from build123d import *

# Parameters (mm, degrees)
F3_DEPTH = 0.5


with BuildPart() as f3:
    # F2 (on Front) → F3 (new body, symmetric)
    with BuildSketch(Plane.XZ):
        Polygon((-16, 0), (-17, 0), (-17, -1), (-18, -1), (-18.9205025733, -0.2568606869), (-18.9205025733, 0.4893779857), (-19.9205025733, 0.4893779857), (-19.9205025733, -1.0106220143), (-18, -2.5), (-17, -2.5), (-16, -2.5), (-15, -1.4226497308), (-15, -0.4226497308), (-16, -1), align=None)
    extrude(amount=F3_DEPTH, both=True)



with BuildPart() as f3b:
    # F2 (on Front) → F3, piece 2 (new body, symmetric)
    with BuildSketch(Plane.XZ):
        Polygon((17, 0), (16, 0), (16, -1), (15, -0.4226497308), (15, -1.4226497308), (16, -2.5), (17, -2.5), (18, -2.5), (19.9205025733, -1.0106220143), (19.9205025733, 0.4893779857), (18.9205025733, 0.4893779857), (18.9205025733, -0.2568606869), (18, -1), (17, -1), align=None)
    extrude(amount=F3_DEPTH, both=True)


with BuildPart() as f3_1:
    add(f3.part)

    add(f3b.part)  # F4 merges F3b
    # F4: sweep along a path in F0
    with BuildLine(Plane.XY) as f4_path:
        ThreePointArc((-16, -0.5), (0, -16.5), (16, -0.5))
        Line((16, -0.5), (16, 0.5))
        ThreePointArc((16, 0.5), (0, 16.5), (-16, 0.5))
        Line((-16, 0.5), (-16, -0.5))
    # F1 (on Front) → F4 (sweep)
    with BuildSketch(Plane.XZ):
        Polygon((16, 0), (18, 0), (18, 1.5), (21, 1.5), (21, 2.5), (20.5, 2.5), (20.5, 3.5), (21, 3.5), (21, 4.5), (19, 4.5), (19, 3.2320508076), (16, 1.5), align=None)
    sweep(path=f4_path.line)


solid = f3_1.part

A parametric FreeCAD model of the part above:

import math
import FreeCAD as App
import Part
import Sketcher
Q = App.Units.Quantity


def add_polygon(sketch, points):
    """Adds a closed chain of lines whose ends are joined by coincident constraints."""
    first, n = sketch.GeometryCount, len(points)
    for a, b in zip(points, points[1:] + points[:1]):
        sketch.addGeometry(Part.LineSegment(App.Vector(*a, 0), App.Vector(*b, 0)), False)
    for i in range(n):
        sketch.addConstraint(Sketcher.Constraint("Coincident", first + i, 2, first + (i + 1) % n, 1))

doc = App.newDocument("Part")
params = doc.addObject("Spreadsheet::Sheet", "Params")
for row, (alias, value) in enumerate([
    ("sketch1_width", "1 mm"),
    ("sketch1_height", "1.5 mm"),
    ("pad1_length", "1 mm"),
    ("sketch2_width", "1 mm"),
    ("sketch2_height", "1.5 mm"),
    ("pad2_length", "1 mm"),
    ("sketch3_width", "2 mm"),
    ("sketch3_width2", "3 mm"),
    ("sketch3_height", "1 mm"),
    ("sketch3_width3", "0.5 mm"),
    ("sketch3_height2", "1.5 mm"),
    ("sketch4_radius", "16 mm"),
    ("sketch4_height", "1 mm"),
], start=1):
    params.set(f"A{row}", alias)
    params.set(f"B{row}", "=" + value)
    params.setAlias(f"B{row}", alias)

body = doc.addObject("PartDesign::Body", "Body")

# Sketch on XZ plane
sketch1 = body.newObject("Sketcher::SketchObject", "Sketch")
sketch1.AttachmentSupport = (doc.getObject("XZ_Plane"), [""])
sketch1.MapMode = "FlatFace"
add_polygon(sketch1, [(-16, 0), (-17, 0), (-17, -1), (-18, -1), (-18.920503, -0.256861), (-18.920503, 0.489378), (-19.920503, 0.489378), (-19.920503, -1.010622), (-18, -2.5), (-16, -2.5), (-15, -1.42265), (-15, -0.42265), (-16, -1)])  # lines 0-12
sketch1.addConstraint([
    Sketcher.Constraint("Horizontal", 0),
    Sketcher.Constraint("Vertical", 1),
    Sketcher.Constraint("Horizontal", 2),
    Sketcher.Constraint("Vertical", 4),
    Sketcher.Constraint("Horizontal", 5),
    Sketcher.Constraint("Vertical", 6),
    Sketcher.Constraint("Horizontal", 8),
    Sketcher.Constraint("Vertical", 10),
    Sketcher.Constraint("Vertical", 12),
    Sketcher.Constraint("PointOnObject", 0, 2, -1),
    Sketcher.Constraint("Horizontal", 2, 2, 11, 2),
    Sketcher.Constraint("Vertical", 2, 2, 7, 2),
    Sketcher.Constraint("Vertical", 8, 2, 11, 2),
    Sketcher.Constraint("Equal", 0, 2),
    Sketcher.Constraint("Equal", 2, 5),
    Sketcher.Constraint("Equal", 5, 1),
    Sketcher.Constraint("Equal", 1, 10),
    Sketcher.Constraint("DistanceX", 0, 2, 0, 1, 1.0),
    Sketcher.Constraint("Angle", 11, Q("-150 deg")),
    Sketcher.Constraint("DistanceY", 6, 2, 6, 1, 1.5),
    Sketcher.Constraint("DistanceX", 0, 2, -1, 1, 17.0),
    Sketcher.Constraint("DistanceX", 9, 2, -1, 1, 15.0),
    Sketcher.Constraint("DistanceY", 7, 2, -1, 1, 2.5),
    Sketcher.Constraint("DistanceY", 4, 1, 4, 2, 0.746239),
    Sketcher.Constraint("Distance", 3, 1.183039),
    Sketcher.Constraint("DistanceY", 3, 2, -1, 1, 0.256861),
])
sketch1.setExpression("Constraints[30]", "Params.sketch1_width")
sketch1.setExpression("Constraints[32]", "Params.sketch1_height")
pad1 = body.newObject("PartDesign::Pad", "Pad")
pad1.Profile = sketch1
pad1.setExpression("Length", "Params.pad1_length")
pad1.Midplane = True
body2 = doc.addObject("PartDesign::Body", "Body001")

# Sketch on XZ plane
sketch2 = body2.newObject("Sketcher::SketchObject", "Sketch001")
sketch2.AttachmentSupport = (doc.getObject("XZ_Plane001"), [""])
sketch2.MapMode = "FlatFace"
add_polygon(sketch2, [(17, 0), (16, 0), (16, -1), (15, -0.42265), (15, -1.42265), (16, -2.5), (18, -2.5), (19.920503, -1.010622), (19.920503, 0.489378), (18.920503, 0.489378), (18.920503, -0.256861), (18, -1), (17, -1)])  # lines 0-12
sketch2.addConstraint([
    Sketcher.Constraint("Horizontal", 0),
    Sketcher.Constraint("Vertical", 1),
    Sketcher.Constraint("Vertical", 3),
    Sketcher.Constraint("Horizontal", 5),
    Sketcher.Constraint("Vertical", 7),
    Sketcher.Constraint("Horizontal", 8),
    Sketcher.Constraint("Vertical", 9),
    Sketcher.Constraint("Horizontal", 11),
    Sketcher.Constraint("Vertical", 12),
    Sketcher.Constraint("PointOnObject", 0, 2, -1),
    Sketcher.Constraint("Horizontal", 1, 2, 10, 2),
    Sketcher.Constraint("Vertical", 1, 2, 4, 2),
    Sketcher.Constraint("Vertical", 5, 2, 10, 2),
    Sketcher.Constraint("Equal", 0, 8),
    Sketcher.Constraint("Equal", 8, 11),
    Sketcher.Constraint("Equal", 11, 1),
    Sketcher.Constraint("Equal", 1, 3),
    Sketcher.Constraint("DistanceX", 0, 2, 0, 1, 1.0),
    Sketcher.Constraint("Angle", 2, Q("150 deg")),
    Sketcher.Constraint("DistanceY", 7, 1, 7, 2, 1.5),
    Sketcher.Constraint("DistanceX", -1, 1, 0, 2, 16.0),
    Sketcher.Constraint("DistanceX", -1, 1, 2, 2, 15.0),
    Sketcher.Constraint("DistanceY", 4, 2, -1, 1, 2.5),
    Sketcher.Constraint("DistanceY", 9, 2, 9, 1, 0.746239),
    Sketcher.Constraint("Distance", 10, 1.183039),
    Sketcher.Constraint("DistanceY", 9, 2, -1, 1, 0.256861),
])
sketch2.setExpression("Constraints[30]", "Params.sketch2_width")
sketch2.setExpression("Constraints[32]", "Params.sketch2_height")
pad2 = body2.newObject("PartDesign::Pad", "Pad001")
pad2.Profile = sketch2
pad2.setExpression("Length", "Params.pad2_length")
pad2.Midplane = True
body.AllowCompound = True
doc.recompute()

boolean = body.newObject("PartDesign::Boolean", "Boolean")
boolean.Type = "Fuse"
boolean.addObjects([body2])

# Sketch on XZ plane
sketch3 = body.newObject("Sketcher::SketchObject", "Sketch002")
sketch3.AttachmentSupport = (doc.getObject("XZ_Plane"), [""])
sketch3.MapMode = "FlatFace"
add_polygon(sketch3, [(16, 0), (18, 0), (18, 1.5), (21, 1.5), (21, 2.5), (20.5, 2.5), (20.5, 3.5), (21, 3.5), (21, 4.5), (19, 4.5), (19, 3.232051), (16, 1.5)])  # lines 0-11
sketch3.addConstraint([
    Sketcher.Constraint("Horizontal", 0),
    Sketcher.Constraint("Vertical", 1),
    Sketcher.Constraint("Horizontal", 2),
    Sketcher.Constraint("Vertical", 3),
    Sketcher.Constraint("Horizontal", 4),
    Sketcher.Constraint("Vertical", 5),
    Sketcher.Constraint("Horizontal", 6),
    Sketcher.Constraint("Vertical", 7),
    Sketcher.Constraint("Horizontal", 8),
    Sketcher.Constraint("Vertical", 9),
    Sketcher.Constraint("Vertical", 11),
    Sketcher.Constraint("PointOnObject", 0, 2, -1),
    Sketcher.Constraint("Horizontal", 2, 2, 10, 2),
    Sketcher.Constraint("Vertical", 3, 2, 6, 2),
    Sketcher.Constraint("Equal", 0, 8),
    Sketcher.Constraint("Equal", 3, 5),
    Sketcher.Constraint("Equal", 5, 7),
    Sketcher.Constraint("DistanceX", 0, 1, 0, 2, 2.0),
    Sketcher.Constraint("DistanceX", 2, 1, 2, 2, 3.0),
    Sketcher.Constraint("DistanceY", 3, 1, 3, 2, 1.0),
    Sketcher.Constraint("Angle", 10, Q("-150 deg")),
    Sketcher.Constraint("DistanceX", 4, 2, 4, 1, 0.5),
    Sketcher.Constraint("DistanceY", 1, 1, 1, 2, 1.5),
    Sketcher.Constraint("DistanceX", -1, 1, 0, 2, 18.0),
])
sketch3.setExpression("Constraints[29]", "Params.sketch3_width")
sketch3.setExpression("Constraints[30]", "Params.sketch3_width2")
sketch3.setExpression("Constraints[31]", "Params.sketch3_height")
sketch3.setExpression("Constraints[33]", "Params.sketch3_width3")
sketch3.setExpression("Constraints[34]", "Params.sketch3_height2")

# Sketch on XY plane
sketch4 = body.newObject("Sketcher::SketchObject", "Sketch003")
sketch4.AttachmentSupport = (doc.getObject("XY_Plane"), [""])
sketch4.MapMode = "FlatFace"
sketch4.addGeometry([
    Part.ArcOfCircle(Part.Circle(App.Vector(0, -0.5, 0), App.Vector(0, 0, 1), 16), math.radians(180), math.radians(360)),
    Part.LineSegment(App.Vector(16, -0.5, 0), App.Vector(16, 0.5, 0)),
    Part.ArcOfCircle(Part.Circle(App.Vector(0, 0.5, 0), App.Vector(0, 0, 1), 16), math.radians(0), math.radians(180)),
    Part.LineSegment(App.Vector(-16, 0.5, 0), App.Vector(-16, -0.5, 0)),
], False)
sketch4.addConstraint([
    Sketcher.Constraint("Tangent", 0, 2, 1, 1),
    Sketcher.Constraint("Tangent", 1, 2, 2, 1),
    Sketcher.Constraint("Tangent", 2, 2, 3, 1),
    Sketcher.Constraint("Tangent", 3, 2, 0, 1),
    Sketcher.Constraint("Vertical", 1),
    Sketcher.Constraint("Vertical", 3),
    Sketcher.Constraint("Symmetric", 0, 3, 2, 3, -1, 1),
    Sketcher.Constraint("Radius", 0, 16.0),
    Sketcher.Constraint("DistanceY", 1, 1, 1, 2, 1.0),
])
sketch4.setExpression("Constraints[7]", "Params.sketch4_radius")
sketch4.setExpression("Constraints[8]", "Params.sketch4_height")
doc.recompute()

additivepipe = body.newObject("PartDesign::AdditivePipe", "AdditivePipe")
additivepipe.Profile = sketch3
additivepipe.Spine = (sketch4, ["Edge1", "Edge2", "Edge3", "Edge4"])

doc.recompute()
